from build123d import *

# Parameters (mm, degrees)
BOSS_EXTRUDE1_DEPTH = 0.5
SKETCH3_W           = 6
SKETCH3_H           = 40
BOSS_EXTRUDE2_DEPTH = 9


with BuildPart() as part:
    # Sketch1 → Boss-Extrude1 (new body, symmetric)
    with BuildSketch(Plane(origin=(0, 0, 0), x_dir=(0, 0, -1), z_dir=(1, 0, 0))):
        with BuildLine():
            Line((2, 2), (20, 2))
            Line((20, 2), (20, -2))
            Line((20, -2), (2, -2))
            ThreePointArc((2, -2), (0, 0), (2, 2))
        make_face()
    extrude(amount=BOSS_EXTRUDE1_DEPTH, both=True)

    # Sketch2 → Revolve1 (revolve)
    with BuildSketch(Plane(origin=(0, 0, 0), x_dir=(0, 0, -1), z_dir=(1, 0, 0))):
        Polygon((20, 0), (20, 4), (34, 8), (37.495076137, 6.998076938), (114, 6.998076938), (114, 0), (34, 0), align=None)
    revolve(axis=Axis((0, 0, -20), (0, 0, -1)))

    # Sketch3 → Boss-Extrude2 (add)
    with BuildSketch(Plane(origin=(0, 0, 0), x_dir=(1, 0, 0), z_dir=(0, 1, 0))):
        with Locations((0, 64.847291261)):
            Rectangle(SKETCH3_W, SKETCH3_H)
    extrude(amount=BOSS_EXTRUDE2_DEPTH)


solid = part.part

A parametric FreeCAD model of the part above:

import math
import FreeCAD as App
import Part
import Sketcher

V = App.Vector
Q = App.Units.Quantity


def add_polygon(sketch, points):
    """Adds a closed chain of lines whose ends are joined by coincident constraints."""
    first, n = sketch.GeometryCount, len(points)
    for a, b in zip(points, points[1:] + points[:1]):
        sketch.addGeometry(Part.LineSegment(App.Vector(*a, 0), App.Vector(*b, 0)), False)
    for i in range(n):
        sketch.addConstraint(Sketcher.Constraint("Coincident", first + i, 2, first + (i + 1) % n, 1))

doc = App.newDocument("Part")
body = doc.addObject("PartDesign::Body", "Body")

# Sketch on YZ plane
sketch1 = doc.addObject("Sketcher::SketchObject", "Sketch")
body.addObject(sketch1)
sketch1.AttachmentSupport = (doc.YZ_Plane, [""])
sketch1.MapMode = "FlatFace"
sketch1.addGeometry([
    Part.LineSegment(V(2, -20, 0), V(2, -2, 0)),
    Part.ArcOfCircle(Part.Circle(V(0, -2, 0), V(0, 0, 1), 2), math.radians(0), math.radians(180)),
    Part.LineSegment(V(-2, -2, 0), V(-2, -20, 0)),
    Part.LineSegment(V(-2, -20, 0), V(2, -20, 0)),
], False)
sketch1.addConstraint([
    Sketcher.Constraint("Tangent", 0, 2, 1, 1),
    Sketcher.Constraint("Tangent", 1, 2, 2, 1),
    Sketcher.Constraint("Coincident", 2, 2, 3, 1),
    Sketcher.Constraint("Coincident", 3, 2, 0, 1),
    Sketcher.Constraint("Vertical", 0),
    Sketcher.Constraint("Vertical", 2),
    Sketcher.Constraint("Horizontal", 3),
    Sketcher.Constraint("PointOnObject", 1, 3, -2),
    Sketcher.Constraint("Radius", 1, Q("2 mm")),
    Sketcher.Constraint("DistanceY", 0, 1, 0, 2, Q("18 mm")),
    Sketcher.Constraint("DistanceY", 1, 3, -1, 1, Q("2 mm")),
])
pad1 = doc.addObject("PartDesign::Pad", "Pad")
body.addObject(pad1)
pad1.Profile = sketch1
pad1.Length = 1
pad1.Midplane = True

# Sketch on YZ plane
sketch2 = doc.addObject("Sketcher::SketchObject", "Sketch001")
body.addObject(sketch2)
sketch2.AttachmentSupport = (doc.YZ_Plane, [""])
sketch2.MapMode = "FlatFace"
add_polygon(sketch2, [(4, -20), (0, -20), (0, -114), (7, -114), (7, -37.5), (8, -34)])  # lines 0-5
sketch2.addConstraint([
    Sketcher.Constraint("Horizontal", 0),
    Sketcher.Constraint("Vertical", 1),
    Sketcher.Constraint("Horizontal", 2),
    Sketcher.Constraint("Vertical", 3),
    Sketcher.Constraint("PointOnObject", 0, 2, -2),
    Sketcher.Constraint("DistanceX", 0, 2, 0, 1, Q("4 mm")),
    Sketcher.Constraint("DistanceY", 1, 2, 1, 1, Q("94 mm")),
    Sketcher.Constraint("DistanceY", 0, 2, -1, 1, Q("20 mm")),
    Sketcher.Constraint("DistanceX", -1, 1, 4, 2, Q("8 mm")),
    Sketcher.Constraint("DistanceY", 4, 2, -1, 1, Q("34 mm")),
    Sketcher.Constraint("Distance", 4, Q("3.63585 mm")),
    Sketcher.Constraint("DistanceX", 2, 1, 2, 2, Q("6.998077 mm")),
])
revolution = doc.addObject("PartDesign::Revolution", "Revolution")
body.addObject(revolution)
revolution.Profile = sketch2
revolution.ReferenceAxis = (sketch2, ["V_Axis"])
revolution.Angle = 360

# Sketch on XZ plane
sketch3 = doc.addObject("Sketcher::SketchObject", "Sketch002")
body.addObject(sketch3)
sketch3.AttachmentSupport = (doc.XZ_Plane, [""])
sketch3.MapMode = "FlatFace"
add_polygon(sketch3, [(-3, -85), (-3, -45), (3, -45), (3, -85)])  # lines 0-3
sketch3.addConstraint([
    Sketcher.Constraint("Vertical", 0),
    Sketcher.Constraint("Horizontal", 1),
    Sketcher.Constraint("Vertical", 2),
    Sketcher.Constraint("Horizontal", 3),
    Sketcher.Constraint("DistanceX", 1, 1, 1, 2, Q("6 mm")),
    Sketcher.Constraint("DistanceY", 0, 1, 0, 2, Q("40 mm")),
    Sketcher.Constraint("DistanceX", 0, 2, -1, 1, Q("3 mm")),
    Sketcher.Constraint("DistanceY", 0, 2, -1, 1, Q("44.847291 mm")),
])
pad2 = doc.addObject("PartDesign::Pad", "Pad001")
body.addObject(pad2)
pad2.Profile = sketch3
pad2.Length = 9
pad2.Reversed = True

doc.recompute()
